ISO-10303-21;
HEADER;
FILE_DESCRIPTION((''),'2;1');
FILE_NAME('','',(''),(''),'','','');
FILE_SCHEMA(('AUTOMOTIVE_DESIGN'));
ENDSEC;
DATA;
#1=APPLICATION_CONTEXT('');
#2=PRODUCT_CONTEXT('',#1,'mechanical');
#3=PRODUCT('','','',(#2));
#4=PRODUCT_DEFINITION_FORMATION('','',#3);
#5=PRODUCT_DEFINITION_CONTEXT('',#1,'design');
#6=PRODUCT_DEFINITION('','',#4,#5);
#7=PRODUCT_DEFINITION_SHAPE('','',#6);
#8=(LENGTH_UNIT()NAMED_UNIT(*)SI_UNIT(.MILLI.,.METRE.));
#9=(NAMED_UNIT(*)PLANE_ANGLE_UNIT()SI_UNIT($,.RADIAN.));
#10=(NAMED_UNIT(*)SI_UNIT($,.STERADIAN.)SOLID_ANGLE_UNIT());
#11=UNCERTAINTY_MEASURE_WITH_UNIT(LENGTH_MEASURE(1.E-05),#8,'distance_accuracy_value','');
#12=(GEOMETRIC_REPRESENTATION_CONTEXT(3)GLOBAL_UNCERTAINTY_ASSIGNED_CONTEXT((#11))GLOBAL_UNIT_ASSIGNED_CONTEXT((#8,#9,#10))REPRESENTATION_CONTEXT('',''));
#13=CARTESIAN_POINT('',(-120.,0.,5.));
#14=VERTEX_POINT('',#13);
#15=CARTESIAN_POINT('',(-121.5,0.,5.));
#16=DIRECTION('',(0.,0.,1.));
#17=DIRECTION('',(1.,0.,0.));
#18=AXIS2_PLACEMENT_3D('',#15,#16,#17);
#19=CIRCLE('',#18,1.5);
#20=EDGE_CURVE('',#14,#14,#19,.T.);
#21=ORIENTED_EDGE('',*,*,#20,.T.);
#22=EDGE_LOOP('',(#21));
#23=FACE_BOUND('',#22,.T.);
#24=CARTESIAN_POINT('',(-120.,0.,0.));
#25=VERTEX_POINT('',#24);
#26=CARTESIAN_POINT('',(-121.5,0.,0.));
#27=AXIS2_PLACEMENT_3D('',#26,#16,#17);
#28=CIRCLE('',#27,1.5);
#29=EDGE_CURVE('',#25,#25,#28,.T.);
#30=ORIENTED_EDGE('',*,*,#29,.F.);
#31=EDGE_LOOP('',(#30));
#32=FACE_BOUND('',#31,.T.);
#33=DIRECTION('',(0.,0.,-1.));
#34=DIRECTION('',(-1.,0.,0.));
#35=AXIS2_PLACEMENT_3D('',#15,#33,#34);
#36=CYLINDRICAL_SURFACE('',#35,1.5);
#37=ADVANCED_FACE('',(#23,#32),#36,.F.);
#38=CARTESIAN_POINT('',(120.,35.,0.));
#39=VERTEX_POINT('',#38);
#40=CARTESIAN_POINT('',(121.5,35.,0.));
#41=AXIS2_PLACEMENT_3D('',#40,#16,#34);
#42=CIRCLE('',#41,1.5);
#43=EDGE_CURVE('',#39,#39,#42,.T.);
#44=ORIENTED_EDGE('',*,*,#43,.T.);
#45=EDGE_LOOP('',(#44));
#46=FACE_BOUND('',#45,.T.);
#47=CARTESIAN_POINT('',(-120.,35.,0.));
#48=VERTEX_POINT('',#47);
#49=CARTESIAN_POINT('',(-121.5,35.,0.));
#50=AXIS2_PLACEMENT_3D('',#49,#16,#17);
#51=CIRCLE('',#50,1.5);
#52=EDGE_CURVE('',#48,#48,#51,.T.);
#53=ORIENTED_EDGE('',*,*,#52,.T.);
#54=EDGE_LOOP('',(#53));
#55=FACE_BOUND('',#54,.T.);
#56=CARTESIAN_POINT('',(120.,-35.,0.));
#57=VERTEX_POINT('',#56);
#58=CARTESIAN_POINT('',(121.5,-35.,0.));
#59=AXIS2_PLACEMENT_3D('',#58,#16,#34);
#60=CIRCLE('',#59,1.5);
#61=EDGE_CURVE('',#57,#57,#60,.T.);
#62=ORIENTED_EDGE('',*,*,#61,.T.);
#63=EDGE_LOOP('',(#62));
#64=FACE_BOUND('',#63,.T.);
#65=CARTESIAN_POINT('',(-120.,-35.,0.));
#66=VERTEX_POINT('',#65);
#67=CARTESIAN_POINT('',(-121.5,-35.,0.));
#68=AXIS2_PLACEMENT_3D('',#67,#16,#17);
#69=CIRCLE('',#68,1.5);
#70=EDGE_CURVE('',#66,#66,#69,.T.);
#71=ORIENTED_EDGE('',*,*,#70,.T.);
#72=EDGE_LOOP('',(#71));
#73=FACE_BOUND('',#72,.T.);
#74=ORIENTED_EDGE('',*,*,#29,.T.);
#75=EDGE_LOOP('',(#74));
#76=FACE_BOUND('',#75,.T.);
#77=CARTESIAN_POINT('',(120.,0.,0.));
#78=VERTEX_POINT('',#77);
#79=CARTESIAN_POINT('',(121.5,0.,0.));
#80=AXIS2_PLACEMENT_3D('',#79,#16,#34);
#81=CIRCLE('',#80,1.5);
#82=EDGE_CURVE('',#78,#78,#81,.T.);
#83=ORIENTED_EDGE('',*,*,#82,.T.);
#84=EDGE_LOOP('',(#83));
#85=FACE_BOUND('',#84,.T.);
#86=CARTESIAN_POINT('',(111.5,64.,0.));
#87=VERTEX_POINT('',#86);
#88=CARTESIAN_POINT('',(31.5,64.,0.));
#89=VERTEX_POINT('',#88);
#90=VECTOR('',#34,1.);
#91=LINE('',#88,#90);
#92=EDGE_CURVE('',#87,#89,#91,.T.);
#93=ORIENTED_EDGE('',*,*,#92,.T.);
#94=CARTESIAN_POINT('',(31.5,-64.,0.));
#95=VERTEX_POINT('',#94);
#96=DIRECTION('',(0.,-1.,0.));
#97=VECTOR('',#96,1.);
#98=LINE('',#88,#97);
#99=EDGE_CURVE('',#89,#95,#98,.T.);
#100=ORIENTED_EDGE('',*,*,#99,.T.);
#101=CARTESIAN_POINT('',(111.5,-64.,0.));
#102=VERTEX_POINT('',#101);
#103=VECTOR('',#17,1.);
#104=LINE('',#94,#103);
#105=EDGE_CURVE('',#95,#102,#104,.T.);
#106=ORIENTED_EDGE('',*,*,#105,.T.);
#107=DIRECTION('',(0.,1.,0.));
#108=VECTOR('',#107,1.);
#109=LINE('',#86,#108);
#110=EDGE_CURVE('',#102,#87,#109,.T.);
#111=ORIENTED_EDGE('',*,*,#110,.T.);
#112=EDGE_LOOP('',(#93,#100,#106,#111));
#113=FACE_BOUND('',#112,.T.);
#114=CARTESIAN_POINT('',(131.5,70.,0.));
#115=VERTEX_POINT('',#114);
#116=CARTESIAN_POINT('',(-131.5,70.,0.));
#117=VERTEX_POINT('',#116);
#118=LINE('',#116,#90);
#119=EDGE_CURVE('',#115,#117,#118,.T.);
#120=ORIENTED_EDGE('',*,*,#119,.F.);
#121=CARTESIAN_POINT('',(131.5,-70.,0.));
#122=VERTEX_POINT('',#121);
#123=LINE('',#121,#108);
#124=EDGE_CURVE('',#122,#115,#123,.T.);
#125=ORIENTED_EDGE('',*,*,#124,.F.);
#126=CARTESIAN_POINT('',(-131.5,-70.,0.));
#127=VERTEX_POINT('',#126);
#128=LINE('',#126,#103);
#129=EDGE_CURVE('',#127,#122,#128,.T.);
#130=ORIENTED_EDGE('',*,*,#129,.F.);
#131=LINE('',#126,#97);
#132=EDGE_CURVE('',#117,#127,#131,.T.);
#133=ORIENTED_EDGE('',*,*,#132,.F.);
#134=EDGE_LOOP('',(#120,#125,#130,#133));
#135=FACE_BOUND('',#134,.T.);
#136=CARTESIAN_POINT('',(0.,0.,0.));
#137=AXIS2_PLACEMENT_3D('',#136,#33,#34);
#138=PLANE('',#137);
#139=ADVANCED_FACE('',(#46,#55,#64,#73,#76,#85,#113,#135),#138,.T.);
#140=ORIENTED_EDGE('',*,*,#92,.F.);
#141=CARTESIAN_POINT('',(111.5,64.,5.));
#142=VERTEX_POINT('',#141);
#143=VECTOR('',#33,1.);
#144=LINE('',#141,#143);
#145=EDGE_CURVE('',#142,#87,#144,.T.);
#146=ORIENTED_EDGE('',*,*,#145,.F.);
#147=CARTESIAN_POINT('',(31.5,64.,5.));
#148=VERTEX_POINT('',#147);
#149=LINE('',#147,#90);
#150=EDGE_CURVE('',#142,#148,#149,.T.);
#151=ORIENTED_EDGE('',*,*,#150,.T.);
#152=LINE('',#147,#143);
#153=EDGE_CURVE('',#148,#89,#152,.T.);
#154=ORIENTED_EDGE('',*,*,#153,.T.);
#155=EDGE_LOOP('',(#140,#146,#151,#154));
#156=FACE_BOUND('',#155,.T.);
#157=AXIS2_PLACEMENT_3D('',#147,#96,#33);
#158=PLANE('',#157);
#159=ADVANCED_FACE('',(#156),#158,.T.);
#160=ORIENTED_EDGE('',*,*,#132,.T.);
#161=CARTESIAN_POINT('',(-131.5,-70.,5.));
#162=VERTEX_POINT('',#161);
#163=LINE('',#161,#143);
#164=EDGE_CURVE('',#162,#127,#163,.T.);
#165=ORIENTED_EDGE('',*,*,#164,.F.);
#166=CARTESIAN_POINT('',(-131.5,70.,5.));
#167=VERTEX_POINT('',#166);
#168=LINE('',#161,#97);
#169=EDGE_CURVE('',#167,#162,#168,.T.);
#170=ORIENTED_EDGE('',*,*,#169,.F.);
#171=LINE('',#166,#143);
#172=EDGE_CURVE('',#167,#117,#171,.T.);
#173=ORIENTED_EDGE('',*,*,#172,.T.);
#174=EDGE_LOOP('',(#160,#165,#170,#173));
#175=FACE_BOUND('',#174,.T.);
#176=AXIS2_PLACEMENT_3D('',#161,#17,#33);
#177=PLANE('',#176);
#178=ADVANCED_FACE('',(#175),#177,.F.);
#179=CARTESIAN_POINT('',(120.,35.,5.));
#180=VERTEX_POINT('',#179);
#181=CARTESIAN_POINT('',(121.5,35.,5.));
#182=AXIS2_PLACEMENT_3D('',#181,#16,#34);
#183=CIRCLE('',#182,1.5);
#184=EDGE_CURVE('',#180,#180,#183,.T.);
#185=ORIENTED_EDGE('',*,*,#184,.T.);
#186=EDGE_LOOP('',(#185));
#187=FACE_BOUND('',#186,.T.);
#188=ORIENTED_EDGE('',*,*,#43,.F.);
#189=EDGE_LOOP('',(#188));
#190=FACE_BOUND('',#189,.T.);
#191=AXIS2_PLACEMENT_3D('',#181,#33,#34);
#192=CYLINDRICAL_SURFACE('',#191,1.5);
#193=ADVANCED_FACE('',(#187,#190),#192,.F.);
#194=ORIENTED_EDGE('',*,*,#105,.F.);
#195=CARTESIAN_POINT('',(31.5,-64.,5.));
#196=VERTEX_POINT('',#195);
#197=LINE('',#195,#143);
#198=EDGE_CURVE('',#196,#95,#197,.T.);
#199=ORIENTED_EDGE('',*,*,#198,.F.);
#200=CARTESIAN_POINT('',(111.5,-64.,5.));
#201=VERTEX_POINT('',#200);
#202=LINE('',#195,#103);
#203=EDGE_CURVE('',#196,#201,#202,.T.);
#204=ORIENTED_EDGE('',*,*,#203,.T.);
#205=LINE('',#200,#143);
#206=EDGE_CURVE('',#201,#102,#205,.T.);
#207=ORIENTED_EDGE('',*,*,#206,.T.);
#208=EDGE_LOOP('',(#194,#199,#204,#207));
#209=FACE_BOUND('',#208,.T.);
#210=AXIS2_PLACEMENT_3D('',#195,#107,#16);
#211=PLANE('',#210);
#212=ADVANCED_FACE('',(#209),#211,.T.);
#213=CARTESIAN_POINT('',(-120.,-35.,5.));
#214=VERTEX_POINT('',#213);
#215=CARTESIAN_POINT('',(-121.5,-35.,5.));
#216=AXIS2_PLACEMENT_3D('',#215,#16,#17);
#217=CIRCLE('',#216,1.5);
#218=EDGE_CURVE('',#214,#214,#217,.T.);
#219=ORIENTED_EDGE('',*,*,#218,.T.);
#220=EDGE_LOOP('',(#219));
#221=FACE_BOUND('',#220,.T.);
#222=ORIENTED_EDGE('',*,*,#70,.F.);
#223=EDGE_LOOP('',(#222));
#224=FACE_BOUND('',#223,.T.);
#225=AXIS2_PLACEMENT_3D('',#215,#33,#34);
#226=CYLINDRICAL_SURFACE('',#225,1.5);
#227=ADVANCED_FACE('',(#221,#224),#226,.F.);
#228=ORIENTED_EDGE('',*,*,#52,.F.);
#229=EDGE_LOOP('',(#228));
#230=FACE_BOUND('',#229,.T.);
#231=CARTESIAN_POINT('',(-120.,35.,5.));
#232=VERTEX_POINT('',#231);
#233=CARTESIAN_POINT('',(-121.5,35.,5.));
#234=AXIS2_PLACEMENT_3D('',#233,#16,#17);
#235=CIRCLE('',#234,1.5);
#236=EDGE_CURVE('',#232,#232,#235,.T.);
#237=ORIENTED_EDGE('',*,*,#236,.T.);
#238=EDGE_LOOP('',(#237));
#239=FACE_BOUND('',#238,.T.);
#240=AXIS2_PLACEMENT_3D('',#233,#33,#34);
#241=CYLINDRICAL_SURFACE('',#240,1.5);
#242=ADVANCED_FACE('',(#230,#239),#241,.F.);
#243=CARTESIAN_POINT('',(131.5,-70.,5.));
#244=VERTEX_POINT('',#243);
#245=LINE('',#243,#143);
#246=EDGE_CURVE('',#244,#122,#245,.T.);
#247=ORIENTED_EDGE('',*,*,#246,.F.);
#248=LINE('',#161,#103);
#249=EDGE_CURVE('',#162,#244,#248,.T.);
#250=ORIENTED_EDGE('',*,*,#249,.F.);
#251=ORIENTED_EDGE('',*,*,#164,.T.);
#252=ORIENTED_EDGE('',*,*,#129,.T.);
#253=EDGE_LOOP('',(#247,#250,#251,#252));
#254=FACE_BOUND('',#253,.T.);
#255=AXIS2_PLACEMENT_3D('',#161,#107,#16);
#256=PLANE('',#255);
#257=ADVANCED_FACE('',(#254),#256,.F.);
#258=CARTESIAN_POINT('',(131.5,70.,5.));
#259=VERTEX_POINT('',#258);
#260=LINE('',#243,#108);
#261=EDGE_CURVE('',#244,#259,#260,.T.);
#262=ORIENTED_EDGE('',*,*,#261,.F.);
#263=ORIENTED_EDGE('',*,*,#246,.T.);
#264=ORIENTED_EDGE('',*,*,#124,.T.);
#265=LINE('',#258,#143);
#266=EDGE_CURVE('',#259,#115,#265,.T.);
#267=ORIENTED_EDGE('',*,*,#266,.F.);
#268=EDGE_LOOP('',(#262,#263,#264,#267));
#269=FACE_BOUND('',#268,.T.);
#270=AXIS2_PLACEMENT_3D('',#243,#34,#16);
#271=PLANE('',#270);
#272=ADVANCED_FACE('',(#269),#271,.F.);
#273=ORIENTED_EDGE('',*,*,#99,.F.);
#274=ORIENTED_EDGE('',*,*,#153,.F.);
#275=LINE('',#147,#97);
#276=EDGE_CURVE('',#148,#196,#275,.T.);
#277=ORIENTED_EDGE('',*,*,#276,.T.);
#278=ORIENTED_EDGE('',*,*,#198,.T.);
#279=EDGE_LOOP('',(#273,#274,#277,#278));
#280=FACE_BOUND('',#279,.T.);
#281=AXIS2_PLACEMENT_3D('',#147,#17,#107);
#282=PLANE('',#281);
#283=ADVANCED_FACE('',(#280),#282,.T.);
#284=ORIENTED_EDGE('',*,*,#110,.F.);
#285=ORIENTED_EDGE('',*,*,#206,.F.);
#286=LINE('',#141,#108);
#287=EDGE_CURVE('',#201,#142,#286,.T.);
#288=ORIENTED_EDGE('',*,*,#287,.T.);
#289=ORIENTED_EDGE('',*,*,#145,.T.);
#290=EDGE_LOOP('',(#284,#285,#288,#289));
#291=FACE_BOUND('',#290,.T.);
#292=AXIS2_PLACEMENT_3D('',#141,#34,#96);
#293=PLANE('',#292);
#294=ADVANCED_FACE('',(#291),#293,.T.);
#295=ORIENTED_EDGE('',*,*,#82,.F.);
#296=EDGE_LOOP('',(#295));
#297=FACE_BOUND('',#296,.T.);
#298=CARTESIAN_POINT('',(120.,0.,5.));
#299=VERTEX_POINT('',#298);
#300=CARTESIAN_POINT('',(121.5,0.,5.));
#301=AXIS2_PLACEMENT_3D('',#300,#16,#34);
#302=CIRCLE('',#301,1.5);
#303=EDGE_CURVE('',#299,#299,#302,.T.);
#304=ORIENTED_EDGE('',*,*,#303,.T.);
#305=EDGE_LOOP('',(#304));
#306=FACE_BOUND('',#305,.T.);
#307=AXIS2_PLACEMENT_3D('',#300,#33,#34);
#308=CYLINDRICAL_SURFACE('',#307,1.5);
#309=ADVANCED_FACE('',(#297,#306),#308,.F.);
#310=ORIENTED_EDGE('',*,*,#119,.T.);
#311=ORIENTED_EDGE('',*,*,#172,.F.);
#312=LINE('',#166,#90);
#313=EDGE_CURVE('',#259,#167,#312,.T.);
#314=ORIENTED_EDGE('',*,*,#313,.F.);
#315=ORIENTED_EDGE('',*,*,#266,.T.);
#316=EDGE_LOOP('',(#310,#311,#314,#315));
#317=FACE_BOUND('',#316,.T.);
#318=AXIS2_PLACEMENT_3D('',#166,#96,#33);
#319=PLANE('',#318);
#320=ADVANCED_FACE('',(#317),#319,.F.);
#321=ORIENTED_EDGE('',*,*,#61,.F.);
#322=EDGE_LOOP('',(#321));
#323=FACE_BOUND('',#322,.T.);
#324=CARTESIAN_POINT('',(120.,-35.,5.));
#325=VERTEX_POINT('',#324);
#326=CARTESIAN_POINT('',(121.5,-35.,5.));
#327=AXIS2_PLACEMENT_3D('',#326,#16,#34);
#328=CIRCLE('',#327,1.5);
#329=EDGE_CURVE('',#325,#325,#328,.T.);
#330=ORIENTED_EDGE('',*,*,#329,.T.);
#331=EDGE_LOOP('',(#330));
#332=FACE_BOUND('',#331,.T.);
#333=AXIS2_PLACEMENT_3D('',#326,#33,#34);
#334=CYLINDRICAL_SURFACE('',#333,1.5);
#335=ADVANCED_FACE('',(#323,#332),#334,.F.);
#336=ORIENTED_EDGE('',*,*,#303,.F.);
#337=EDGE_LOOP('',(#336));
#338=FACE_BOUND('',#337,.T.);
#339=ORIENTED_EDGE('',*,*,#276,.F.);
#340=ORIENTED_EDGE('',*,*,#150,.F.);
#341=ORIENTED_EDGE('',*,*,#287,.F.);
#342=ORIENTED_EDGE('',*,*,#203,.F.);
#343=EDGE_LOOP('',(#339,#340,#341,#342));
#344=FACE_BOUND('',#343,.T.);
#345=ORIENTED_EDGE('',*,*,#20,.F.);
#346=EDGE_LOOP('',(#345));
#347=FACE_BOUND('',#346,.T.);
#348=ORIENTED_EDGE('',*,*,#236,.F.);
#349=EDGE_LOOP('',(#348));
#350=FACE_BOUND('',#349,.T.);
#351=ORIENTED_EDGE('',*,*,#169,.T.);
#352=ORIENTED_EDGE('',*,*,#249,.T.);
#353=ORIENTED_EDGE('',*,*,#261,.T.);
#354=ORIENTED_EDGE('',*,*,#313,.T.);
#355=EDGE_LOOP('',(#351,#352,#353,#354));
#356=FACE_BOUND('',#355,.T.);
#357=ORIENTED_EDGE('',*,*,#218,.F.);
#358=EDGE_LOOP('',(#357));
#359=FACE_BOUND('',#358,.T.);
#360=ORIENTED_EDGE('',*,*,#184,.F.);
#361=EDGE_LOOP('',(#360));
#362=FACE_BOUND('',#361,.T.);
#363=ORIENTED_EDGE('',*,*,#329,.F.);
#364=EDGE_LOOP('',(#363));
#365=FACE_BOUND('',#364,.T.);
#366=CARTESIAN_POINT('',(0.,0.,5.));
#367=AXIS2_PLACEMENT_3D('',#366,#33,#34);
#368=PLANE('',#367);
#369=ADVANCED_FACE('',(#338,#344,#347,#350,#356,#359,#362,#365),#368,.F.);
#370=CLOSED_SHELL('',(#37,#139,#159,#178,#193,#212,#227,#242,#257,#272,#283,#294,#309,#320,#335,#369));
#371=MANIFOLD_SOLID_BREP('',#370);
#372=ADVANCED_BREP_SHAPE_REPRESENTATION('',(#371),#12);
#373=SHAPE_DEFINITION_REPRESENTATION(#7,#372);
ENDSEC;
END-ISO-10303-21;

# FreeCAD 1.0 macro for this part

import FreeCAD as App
import Part
import Sketcher

doc = App.newDocument("Part")
params = doc.addObject("Spreadsheet::Sheet", "Params")
for row, (alias, value) in enumerate([
    ("sketch1_diameter", "3 mm"),
    ("sketch1_width", "263 mm"),
    ("sketch1_width2", "80 mm"),
    ("sketch1_height", "140 mm"),
    ("sketch1_height2", "128 mm"),
    ("pad1_length", "5 mm"),
], start=1):
    params.set(f"A{row}", alias)
    params.set(f"B{row}", "=" + value)
    params.setAlias(f"B{row}", alias)

body = doc.addObject("PartDesign::Body", "Body")

# Sketch on XY plane
sketch1 = body.newObject("Sketcher::SketchObject", "Sketch")
sketch1.AttachmentSupport = (doc.getObject("XY_Plane"), [""])
sketch1.MapMode = "FlatFace"
sketch1.addGeometry(Part.LineSegment(App.Vector(-131.5, 70, 0), App.Vector(-131.5, -70, 0)), False)
sketch1.addGeometry(Part.LineSegment(App.Vector(-131.5, -70, 0), App.Vector(131.5, -70, 0)), False)
sketch1.addGeometry(Part.LineSegment(App.Vector(131.5, -70, 0), App.Vector(131.5, 70, 0)), False)
sketch1.addGeometry(Part.LineSegment(App.Vector(131.5, 70, 0), App.Vector(-131.5, 70, 0)), False)
sketch1.addGeometry(Part.Circle(App.Vector(-121.5, -35, 0), App.Vector(0, 0, 1), 1.5), False)
sketch1.addGeometry(Part.Circle(App.Vector(121.5, -35, 0), App.Vector(0, 0, 1), 1.5), False)
sketch1.addGeometry(Part.Circle(App.Vector(-121.5, 0, 0), App.Vector(0, 0, 1), 1.5), False)
sketch1.addGeometry(Part.Circle(App.Vector(-121.5, 35, 0), App.Vector(0, 0, 1), 1.5), False)
sketch1.addGeometry(Part.LineSegment(App.Vector(111.5, -64, 0), App.Vector(31.5, -64, 0)), False)
sketch1.addGeometry(Part.LineSegment(App.Vector(31.5, -64, 0), App.Vector(31.5, 64, 0)), False)
sketch1.addGeometry(Part.LineSegment(App.Vector(31.5, 64, 0), App.Vector(111.5, 64, 0)), False)
sketch1.addGeometry(Part.LineSegment(App.Vector(111.5, 64, 0), App.Vector(111.5, -64, 0)), False)
sketch1.addGeometry(Part.Circle(App.Vector(121.5, 0, 0), App.Vector(0, 0, 1), 1.5), False)
sketch1.addGeometry(Part.Circle(App.Vector(121.5, 35, 0), App.Vector(0, 0, 1), 1.5), False)
sketch1.addConstraint(Sketcher.Constraint("Coincident", 0, 2, 1, 1))
sketch1.addConstraint(Sketcher.Constraint("Coincident", 1, 2, 2, 1))
sketch1.addConstraint(Sketcher.Constraint("Coincident", 2, 2, 3, 1))
sketch1.addConstraint(Sketcher.Constraint("Coincident", 3, 2, 0, 1))
sketch1.addConstraint(Sketcher.Constraint("Coincident", 8, 2, 9, 1))
sketch1.addConstraint(Sketcher.Constraint("Coincident", 9, 2, 10, 1))
sketch1.addConstraint(Sketcher.Constraint("Coincident", 10, 2, 11, 1))
sketch1.addConstraint(Sketcher.Constraint("Coincident", 11, 2, 8, 1))
sketch1.addConstraint(Sketcher.Constraint("Vertical", 0))
sketch1.addConstraint(Sketcher.Constraint("Horizontal", 1))
sketch1.addConstraint(Sketcher.Constraint("Vertical", 2))
sketch1.addConstraint(Sketcher.Constraint("Horizontal", 3))
sketch1.addConstraint(Sketcher.Constraint("Horizontal", 8))
sketch1.addConstraint(Sketcher.Constraint("Vertical", 9))
sketch1.addConstraint(Sketcher.Constraint("Horizontal", 10))
sketch1.addConstraint(Sketcher.Constraint("Vertical", 11))
sketch1.addConstraint(Sketcher.Constraint("Equal", 4, 5))
sketch1.addConstraint(Sketcher.Constraint("Equal", 5, 6))
sketch1.addConstraint(Sketcher.Constraint("Equal", 6, 7))
sketch1.addConstraint(Sketcher.Constraint("Equal", 7, 12))
sketch1.addConstraint(Sketcher.Constraint("Equal", 12, 13))
sketch1.addConstraint(Sketcher.Constraint("Symmetric", 5, 3, 7, 3, -1, 1))
sketch1.addConstraint(Sketcher.Constraint("Symmetric", 6, 3, 12, 3, -1, 1))
sketch1.addConstraint(Sketcher.Constraint("Symmetric", 4, 3, 13, 3, -1, 1))
sketch1.addConstraint(Sketcher.Constraint("Symmetric", 0, 2, 2, 2, -1, 1))
sketch1.addConstraint(Sketcher.Constraint("Symmetric", 4, 3, 5, 3, -2))
sketch1.addConstraint(Sketcher.Constraint("PointOnObject", 6, 3, -1))
sketch1.addConstraint(Sketcher.Constraint("Vertical", 4, 3, 6, 3))
sketch1.addConstraint(Sketcher.Constraint("Diameter", 4, 3.0))
sketch1.addConstraint(Sketcher.Constraint("DistanceX", 1, 1, 1, 2, 263.0))
sketch1.addConstraint(Sketcher.Constraint("DistanceX", 8, 2, 8, 1, 80.0))
sketch1.addConstraint(Sketcher.Constraint("DistanceY", 0, 2, 0, 1, 140.0))
sketch1.addConstraint(Sketcher.Constraint("DistanceY", 9, 1, 9, 2, 128.0))
sketch1.addConstraint(Sketcher.Constraint("DistanceY", 4, 3, -1, 1, 35.0))
sketch1.addConstraint(Sketcher.Constraint("DistanceY", 8, 2, -1, 1, 64.0))
sketch1.addConstraint(Sketcher.Constraint("DistanceX", 4, 3, 5, 3, 243.0))
sketch1.addConstraint(Sketcher.Constraint("DistanceX", 8, 2, 5, 3, 90.0))
sketch1.setExpression("Constraints[28]", "Params.sketch1_diameter")
sketch1.setExpression("Constraints[29]", "Params.sketch1_width")
sketch1.setExpression("Constraints[30]", "Params.sketch1_width2")
sketch1.setExpression("Constraints[31]", "Params.sketch1_height")
sketch1.setExpression("Constraints[32]", "Params.sketch1_height2")
pad1 = body.newObject("PartDesign::Pad", "Pad")
pad1.Profile = sketch1
pad1.setExpression("Length", "Params.pad1_length")

doc.recompute()
